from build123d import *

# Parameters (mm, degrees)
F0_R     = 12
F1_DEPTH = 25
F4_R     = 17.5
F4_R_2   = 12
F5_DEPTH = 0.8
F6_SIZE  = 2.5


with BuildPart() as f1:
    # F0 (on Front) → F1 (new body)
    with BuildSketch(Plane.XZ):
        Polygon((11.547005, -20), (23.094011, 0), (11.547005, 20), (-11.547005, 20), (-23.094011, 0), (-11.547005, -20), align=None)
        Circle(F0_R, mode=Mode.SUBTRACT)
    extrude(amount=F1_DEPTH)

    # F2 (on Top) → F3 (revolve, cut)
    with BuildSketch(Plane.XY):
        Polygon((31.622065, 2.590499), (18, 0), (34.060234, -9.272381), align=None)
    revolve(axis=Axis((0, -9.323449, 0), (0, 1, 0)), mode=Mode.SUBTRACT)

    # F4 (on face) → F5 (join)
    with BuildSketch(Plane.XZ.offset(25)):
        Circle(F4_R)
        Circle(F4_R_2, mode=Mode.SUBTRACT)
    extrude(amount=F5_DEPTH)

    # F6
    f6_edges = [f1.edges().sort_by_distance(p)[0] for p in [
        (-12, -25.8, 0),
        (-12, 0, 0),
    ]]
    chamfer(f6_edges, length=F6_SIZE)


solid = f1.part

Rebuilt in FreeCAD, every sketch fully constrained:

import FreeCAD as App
import Part
import Sketcher
from FreeCAD import Vector
Q = App.Units.Quantity


def edges_at(feature, points):
    """Names of the edges that pass closest to the given points."""
    edges = feature.Shape.Edges
    near = lambda p: min(range(len(edges)), key=lambda i: edges[i].distToShape(Part.Vertex(*p))[0])
    return sorted({f"Edge{near(p) + 1}" for p in points})

doc = App.newDocument("Part")
body = doc.addObject("PartDesign::Body", "Body")

# Sketch on XZ plane
sketch1 = body.newObject("Sketcher::SketchObject", "Sketch")
sketch1.AttachmentSupport = (doc.getObject("XZ_Plane"), [""])
sketch1.MapMode = "FlatFace"
sketch1.addGeometry(Part.LineSegment(Vector(12, -20, 0), Vector(23, 0, 0)), False)
sketch1.addGeometry(Part.LineSegment(Vector(23, 0, 0), Vector(12, 20, 0)), False)
sketch1.addGeometry(Part.LineSegment(Vector(12, 20, 0), Vector(-12, 20, 0)), False)
sketch1.addGeometry(Part.LineSegment(Vector(-12, 20, 0), Vector(-23, 0, 0)), False)
sketch1.addGeometry(Part.LineSegment(Vector(-23, 0, 0), Vector(-12, -20, 0)), False)
sketch1.addGeometry(Part.LineSegment(Vector(-12, -20, 0), Vector(12, -20, 0)), False)
sketch1.addGeometry(Part.Circle(Vector(0, 0, 0), Vector(0, 0, 1), 12), False)
sketch1.addConstraint(Sketcher.Constraint("Coincident", 0, 2, 1, 1))
sketch1.addConstraint(Sketcher.Constraint("Coincident", 1, 2, 2, 1))
sketch1.addConstraint(Sketcher.Constraint("Coincident", 2, 2, 3, 1))
sketch1.addConstraint(Sketcher.Constraint("Coincident", 3, 2, 4, 1))
sketch1.addConstraint(Sketcher.Constraint("Coincident", 4, 2, 5, 1))
sketch1.addConstraint(Sketcher.Constraint("Coincident", 5, 2, 0, 1))
sketch1.addConstraint(Sketcher.Constraint("Horizontal", 2))
sketch1.addConstraint(Sketcher.Constraint("Horizontal", 5))
sketch1.addConstraint(Sketcher.Constraint("Coincident", 6, 3, -1, 1))
sketch1.addConstraint(Sketcher.Constraint("Symmetric", 0, 2, 3, 2, -1, 1))
sketch1.addConstraint(Sketcher.Constraint("Symmetric", 1, 2, 4, 2, -1, 1))
sketch1.addConstraint(Sketcher.Constraint("PointOnObject", 0, 2, -1))
sketch1.addConstraint(Sketcher.Constraint("Parallel", 0, 3))
sketch1.addConstraint(Sketcher.Constraint("Vertical", 2, 2, 4, 2))
sketch1.addConstraint(Sketcher.Constraint("Diameter", 6, Q("24 mm")))
sketch1.addConstraint(Sketcher.Constraint("Angle", 0, Q("59.999999 deg")))
sketch1.addConstraint(Sketcher.Constraint("DistanceY", -1, 1, 1, 2, Q("20 mm")))
sketch1.addConstraint(Sketcher.Constraint("DistanceX", 2, 2, 2, 1, Q("23.09401 mm")))
pad1 = body.newObject("PartDesign::Pad", "Pad")
pad1.Profile = sketch1
pad1.Length = 25

# Sketch on XY plane
sketch2 = body.newObject("Sketcher::SketchObject", "Sketch001")
sketch2.AttachmentSupport = (doc.getObject("XY_Plane"), [""])
sketch2.MapMode = "FlatFace"
sketch2.addGeometry(Part.LineSegment(Vector(32, 3, 0), Vector(18, 0, 0)), False)
sketch2.addGeometry(Part.LineSegment(Vector(18, 0, 0), Vector(34, -9, 0)), False)
sketch2.addGeometry(Part.LineSegment(Vector(34, -9, 0), Vector(32, 3, 0)), False)
sketch2.addConstraint(Sketcher.Constraint("Coincident", 0, 2, 1, 1))
sketch2.addConstraint(Sketcher.Constraint("Coincident", 1, 2, 2, 1))
sketch2.addConstraint(Sketcher.Constraint("Coincident", 2, 2, 0, 1))
sketch2.addConstraint(Sketcher.Constraint("PointOnObject", 0, 2, -1))
sketch2.addConstraint(Sketcher.Constraint("Angle", 1, Q("-30.000002 deg")))
sketch2.addConstraint(Sketcher.Constraint("DistanceX", -1, 1, 0, 2, Q("18 mm")))
sketch2.addConstraint(Sketcher.Constraint("DistanceY", -1, 1, 2, 2, Q("2.590499 mm")))
sketch2.addConstraint(Sketcher.Constraint("Distance", 1, Q("18.544761 mm")))
sketch2.addConstraint(Sketcher.Constraint("DistanceX", 2, 2, 1, 2, Q("2.438169 mm")))
groove = body.newObject("PartDesign::Groove", "Groove")
groove.Profile = sketch2
groove.ReferenceAxis = (sketch2, ["V_Axis"])
groove.Angle = 360

# Sketch on XZ plane
sketch3 = body.newObject("Sketcher::SketchObject", "Sketch002")
sketch3.AttachmentSupport = (doc.getObject("XZ_Plane"), [""])
sketch3.MapMode = "FlatFace"
sketch3.AttachmentOffset = App.Placement(Vector(0, 0, 25), App.Rotation())
sketch3.addGeometry(Part.Circle(Vector(0, 0, 0), Vector(0, 0, 1), 18), False)
sketch3.addGeometry(Part.Circle(Vector(0, 0, 0), Vector(0, 0, 1), 12), False)
sketch3.addConstraint(Sketcher.Constraint("Coincident", 0, 3, -1, 1))
sketch3.addConstraint(Sketcher.Constraint("Coincident", 1, 3, -1, 1))
sketch3.addConstraint(Sketcher.Constraint("Diameter", 0, Q("35 mm")))
sketch3.addConstraint(Sketcher.Constraint("Diameter", 1, Q("24 mm")))
pad2 = body.newObject("PartDesign::Pad", "Pad001")
pad2.Profile = sketch3
pad2.Length = 0.8
doc.recompute()

chamfer = body.newObject("PartDesign::Chamfer", "Chamfer")
chamfer.Base = (pad2, edges_at(pad2, [(-12, -25.8, 0), (-12, 0, 0)]))
chamfer.Size = 2.5

doc.recompute()
